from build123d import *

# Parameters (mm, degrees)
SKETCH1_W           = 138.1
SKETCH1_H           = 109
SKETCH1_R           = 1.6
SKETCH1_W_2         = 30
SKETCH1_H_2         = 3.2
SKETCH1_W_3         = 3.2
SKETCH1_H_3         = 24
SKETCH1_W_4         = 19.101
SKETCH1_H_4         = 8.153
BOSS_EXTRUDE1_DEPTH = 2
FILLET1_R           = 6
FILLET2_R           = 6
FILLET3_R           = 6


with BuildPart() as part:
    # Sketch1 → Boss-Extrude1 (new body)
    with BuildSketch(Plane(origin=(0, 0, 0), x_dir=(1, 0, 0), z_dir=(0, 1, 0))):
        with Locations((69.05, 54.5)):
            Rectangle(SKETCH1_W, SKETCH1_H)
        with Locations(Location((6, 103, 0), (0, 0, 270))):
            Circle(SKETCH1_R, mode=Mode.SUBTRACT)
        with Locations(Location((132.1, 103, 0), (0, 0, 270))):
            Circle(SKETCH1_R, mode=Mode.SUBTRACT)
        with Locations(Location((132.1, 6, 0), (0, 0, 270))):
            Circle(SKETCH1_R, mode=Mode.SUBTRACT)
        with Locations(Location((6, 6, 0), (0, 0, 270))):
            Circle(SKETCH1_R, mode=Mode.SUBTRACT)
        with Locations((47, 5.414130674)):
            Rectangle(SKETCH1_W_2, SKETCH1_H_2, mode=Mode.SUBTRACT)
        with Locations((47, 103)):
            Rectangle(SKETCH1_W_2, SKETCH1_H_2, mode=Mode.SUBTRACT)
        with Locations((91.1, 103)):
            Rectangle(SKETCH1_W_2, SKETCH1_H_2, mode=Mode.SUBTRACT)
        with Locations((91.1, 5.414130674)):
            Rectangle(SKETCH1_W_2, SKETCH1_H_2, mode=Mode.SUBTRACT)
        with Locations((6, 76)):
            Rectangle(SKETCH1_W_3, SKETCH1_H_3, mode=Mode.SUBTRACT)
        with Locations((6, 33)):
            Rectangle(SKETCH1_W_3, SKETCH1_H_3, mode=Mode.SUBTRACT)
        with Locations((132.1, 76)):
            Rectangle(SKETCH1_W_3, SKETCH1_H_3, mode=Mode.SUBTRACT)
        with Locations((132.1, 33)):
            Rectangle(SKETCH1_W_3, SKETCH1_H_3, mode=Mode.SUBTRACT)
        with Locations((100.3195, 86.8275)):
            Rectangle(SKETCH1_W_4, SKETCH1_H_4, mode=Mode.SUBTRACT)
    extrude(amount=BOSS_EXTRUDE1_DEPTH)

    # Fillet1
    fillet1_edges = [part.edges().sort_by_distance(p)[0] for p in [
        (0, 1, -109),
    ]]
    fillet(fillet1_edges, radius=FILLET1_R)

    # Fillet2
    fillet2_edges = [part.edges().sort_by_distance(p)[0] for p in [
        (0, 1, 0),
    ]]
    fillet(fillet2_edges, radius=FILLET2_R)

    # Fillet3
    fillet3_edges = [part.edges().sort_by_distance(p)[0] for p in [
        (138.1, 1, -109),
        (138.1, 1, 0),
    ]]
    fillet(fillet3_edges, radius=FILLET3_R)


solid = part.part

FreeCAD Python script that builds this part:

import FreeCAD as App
import Part
import Sketcher


def edges_at(feature, points):
    """Names of the edges that pass closest to the given points."""
    edges = feature.Shape.Edges
    near = lambda p: min(range(len(edges)), key=lambda i: edges[i].distToShape(Part.Vertex(*p))[0])
    return sorted({f"Edge{near(p) + 1}" for p in points})


def add_polygon(sketch, points):
    """Adds a closed chain of lines whose ends are joined by coincident constraints."""
    first, n = sketch.GeometryCount, len(points)
    for a, b in zip(points, points[1:] + points[:1]):
        sketch.addGeometry(Part.LineSegment(App.Vector(*a, 0), App.Vector(*b, 0)), False)
    for i in range(n):
        sketch.addConstraint(Sketcher.Constraint("Coincident", first + i, 2, first + (i + 1) % n, 1))

doc = App.newDocument("Part")
body = doc.addObject("PartDesign::Body", "Body")

sketch1 = doc.addObject("Sketcher::SketchObject", "Sketch")
body.addObject(sketch1)
sketch1.AttachmentSupport = (doc.XZ_Plane, [""])
sketch1.MapMode = "FlatFace"
add_polygon(sketch1, [(0, -109), (0, 0), (138.1, 0), (138.1, -109)])
sketch1.addGeometry(Part.Circle(App.Vector(6, -6, 0), App.Vector(0, 0, 1), 1.6), False)
add_polygon(sketch1, [(62, -3.8), (32, -3.8), (32, -7), (62, -7)])
add_polygon(sketch1, [(7.6, -21), (4.4, -21), (4.4, -45), (7.6, -45)])
add_polygon(sketch1, [(106.1, -3.8), (76.1, -3.8), (76.1, -7), (106.1, -7)])
sketch1.addGeometry(Part.Circle(App.Vector(132.1, -6, 0), App.Vector(0, 0, 1), 1.6), False)
add_polygon(sketch1, [(133.7, -21), (130.5, -21), (130.5, -45), (133.7, -45)])
add_polygon(sketch1, [(7.6, -64), (4.4, -64), (4.4, -88), (7.6, -88)])
sketch1.addGeometry(Part.Circle(App.Vector(6, -103, 0), App.Vector(0, 0, 1), 1.6), False)
add_polygon(sketch1, [(62, -101.4), (32, -101.4), (32, -104.6), (62, -104.6)])
add_polygon(sketch1, [(133.7, -64), (130.5, -64), (130.5, -88), (133.7, -88)])
add_polygon(sketch1, [(109.9, -82.8), (90.8, -82.8), (90.8, -90.9), (109.9, -90.9)])
add_polygon(sketch1, [(106.1, -101.4), (76.1, -101.4), (76.1, -104.6), (106.1, -104.6)])
sketch1.addGeometry(Part.Circle(App.Vector(132.1, -103, 0), App.Vector(0, 0, 1), 1.6), False)
sketch1.addConstraint([
    Sketcher.Constraint("Vertical", 0),
    Sketcher.Constraint("Horizontal", 1),
    Sketcher.Constraint("Vertical", 2),
    Sketcher.Constraint("Horizontal", 3),
    Sketcher.Constraint("Horizontal", 5),
    Sketcher.Constraint("Vertical", 6),
    Sketcher.Constraint("Horizontal", 7),
    Sketcher.Constraint("Vertical", 8),
    Sketcher.Constraint("Horizontal", 9),
    Sketcher.Constraint("Vertical", 10),
    Sketcher.Constraint("Horizontal", 11),
    Sketcher.Constraint("Vertical", 12),
    Sketcher.Constraint("Horizontal", 13),
    Sketcher.Constraint("Vertical", 14),
    Sketcher.Constraint("Horizontal", 15),
    Sketcher.Constraint("Vertical", 16),
    Sketcher.Constraint("Horizontal", 18),
    Sketcher.Constraint("Vertical", 19),
    Sketcher.Constraint("Horizontal", 20),
    Sketcher.Constraint("Vertical", 21),
    Sketcher.Constraint("Horizontal", 22),
    Sketcher.Constraint("Vertical", 23),
    Sketcher.Constraint("Horizontal", 24),
    Sketcher.Constraint("Vertical", 25),
    Sketcher.Constraint("Horizontal", 27),
    Sketcher.Constraint("Vertical", 28),
    Sketcher.Constraint("Horizontal", 29),
    Sketcher.Constraint("Vertical", 30),
    Sketcher.Constraint("Horizontal", 31),
    Sketcher.Constraint("Vertical", 32),
    Sketcher.Constraint("Horizontal", 33),
    Sketcher.Constraint("Vertical", 34),
    Sketcher.Constraint("Horizontal", 35),
    Sketcher.Constraint("Vertical", 36),
    Sketcher.Constraint("Horizontal", 37),
    Sketcher.Constraint("Vertical", 38),
    Sketcher.Constraint("Horizontal", 39),
    Sketcher.Constraint("Vertical", 40),
    Sketcher.Constraint("Horizontal", 41),
    Sketcher.Constraint("Vertical", 42),
    Sketcher.Constraint("Coincident", 0, 2, -1, 1),
    Sketcher.Constraint("Equal", 4, 17),
    Sketcher.Constraint("Equal", 17, 26),
    Sketcher.Constraint("Equal", 26, 43),
    Sketcher.Constraint("Horizontal", 4, 3, 17, 3),
    Sketcher.Constraint("Horizontal", 26, 3, 43, 3),
    Sketcher.Constraint("Horizontal", 8, 2, 13, 2),
    Sketcher.Constraint("Horizontal", 7, 2, 14, 2),
    Sketcher.Constraint("Horizontal", 12, 2, 18, 2),
    Sketcher.Constraint("Horizontal", 11, 2, 19, 2),
    Sketcher.Constraint("Horizontal", 25, 2, 31, 2),
    Sketcher.Constraint("Horizontal", 24, 2, 32, 2),
    Sketcher.Constraint("Horizontal", 30, 2, 39, 2),
    Sketcher.Constraint("Horizontal", 29, 2, 40, 2),
    Sketcher.Constraint("Vertical", 4, 3, 26, 3),
    Sketcher.Constraint("Vertical", 17, 3, 43, 3),
    Sketcher.Constraint("Vertical", 10, 2, 22, 2),
    Sketcher.Constraint("Vertical", 12, 2, 24, 2),
    Sketcher.Constraint("Vertical", 6, 2, 27, 2),
    Sketcher.Constraint("Vertical", 8, 2, 29, 2),
    Sketcher.Constraint("Vertical", 19, 2, 31, 2),
    Sketcher.Constraint("Vertical", 21, 2, 33, 2),
    Sketcher.Constraint("Vertical", 14, 2, 39, 2),
    Sketcher.Constraint("Vertical", 16, 2, 41, 2),
    Sketcher.Constraint("Equal", 7, 13),
    Sketcher.Constraint("Equal", 11, 18),
    Sketcher.Constraint("Equal", 33, 6),
    Sketcher.Constraint("Equal", 21, 23),
    Sketcher.Constraint("Equal", 16, 28),
    Sketcher.Constraint("Diameter", 4, 3.2),
    Sketcher.Constraint("DistanceX", 5, 2, 5, 1, 30.0),
    Sketcher.Constraint("DistanceY", 0, 1, 0, 2, 109.0),
    Sketcher.Constraint("DistanceY", 10, 2, 10, 1, 24.0),
    Sketcher.Constraint("DistanceX", 1, 1, 1, 2, 138.1),
    Sketcher.Constraint("DistanceX", 9, 2, 9, 1, 3.2),
    Sketcher.Constraint("DistanceX", -1, 1, 4, 3, 6.0),
    Sketcher.Constraint("DistanceY", 4, 3, -1, 1, 6.0),
    Sketcher.Constraint("DistanceY", 26, 3, -1, 1, 103.0),
    Sketcher.Constraint("DistanceX", -1, 1, 5, 2, 32.0),
    Sketcher.Constraint("DistanceY", 9, 2, -1, 1, 21.0),
    Sketcher.Constraint("DistanceY", 22, 2, -1, 1, 64.0),
    Sketcher.Constraint("DistanceX", 17, 3, 1, 2, 6.0),
    Sketcher.Constraint("DistanceX", 13, 2, 17, 3, 56.0),
    Sketcher.Constraint("DistanceX", -1, 1, 9, 2, 4.4),
    Sketcher.Constraint("DistanceX", -1, 1, 18, 2, 130.5),
    Sketcher.Constraint("DistanceY", 27, 2, -1, 1, 101.4),
    Sketcher.Constraint("DistanceX", 35, 2, 35, 1, 19.101),
    Sketcher.Constraint("DistanceY", 36, 2, 36, 1, 8.153),
    Sketcher.Constraint("DistanceX", -1, 1, 37, 2, 109.87),
    Sketcher.Constraint("DistanceY", 35, 2, -1, 1, 82.751),
    Sketcher.Constraint("DistanceY", 5, 2, -1, 1, 3.814131),
])
pad1 = doc.addObject("PartDesign::Pad", "Pad")
body.addObject(pad1)
pad1.Profile = sketch1
pad1.Length = 2
pad1.Reversed = True
doc.recompute()

fillet = doc.addObject("PartDesign::Fillet", "Fillet")
body.addObject(fillet)
fillet.Base = (pad1, edges_at(pad1, [(0, 1, -109)]))
fillet.Radius = 6
doc.recompute()

fillet2 = doc.addObject("PartDesign::Fillet", "Fillet001")
body.addObject(fillet2)
fillet2.Base = (fillet, edges_at(fillet, [(0, 1, 0)]))
fillet2.Radius = 6
doc.recompute()

fillet3 = doc.addObject("PartDesign::Fillet", "Fillet002")
body.addObject(fillet3)
fillet3.Base = (fillet2, edges_at(fillet2, [(138.1, 1, -109), (138.1, 1, 0)]))
fillet3.Radius = 6

doc.recompute()
